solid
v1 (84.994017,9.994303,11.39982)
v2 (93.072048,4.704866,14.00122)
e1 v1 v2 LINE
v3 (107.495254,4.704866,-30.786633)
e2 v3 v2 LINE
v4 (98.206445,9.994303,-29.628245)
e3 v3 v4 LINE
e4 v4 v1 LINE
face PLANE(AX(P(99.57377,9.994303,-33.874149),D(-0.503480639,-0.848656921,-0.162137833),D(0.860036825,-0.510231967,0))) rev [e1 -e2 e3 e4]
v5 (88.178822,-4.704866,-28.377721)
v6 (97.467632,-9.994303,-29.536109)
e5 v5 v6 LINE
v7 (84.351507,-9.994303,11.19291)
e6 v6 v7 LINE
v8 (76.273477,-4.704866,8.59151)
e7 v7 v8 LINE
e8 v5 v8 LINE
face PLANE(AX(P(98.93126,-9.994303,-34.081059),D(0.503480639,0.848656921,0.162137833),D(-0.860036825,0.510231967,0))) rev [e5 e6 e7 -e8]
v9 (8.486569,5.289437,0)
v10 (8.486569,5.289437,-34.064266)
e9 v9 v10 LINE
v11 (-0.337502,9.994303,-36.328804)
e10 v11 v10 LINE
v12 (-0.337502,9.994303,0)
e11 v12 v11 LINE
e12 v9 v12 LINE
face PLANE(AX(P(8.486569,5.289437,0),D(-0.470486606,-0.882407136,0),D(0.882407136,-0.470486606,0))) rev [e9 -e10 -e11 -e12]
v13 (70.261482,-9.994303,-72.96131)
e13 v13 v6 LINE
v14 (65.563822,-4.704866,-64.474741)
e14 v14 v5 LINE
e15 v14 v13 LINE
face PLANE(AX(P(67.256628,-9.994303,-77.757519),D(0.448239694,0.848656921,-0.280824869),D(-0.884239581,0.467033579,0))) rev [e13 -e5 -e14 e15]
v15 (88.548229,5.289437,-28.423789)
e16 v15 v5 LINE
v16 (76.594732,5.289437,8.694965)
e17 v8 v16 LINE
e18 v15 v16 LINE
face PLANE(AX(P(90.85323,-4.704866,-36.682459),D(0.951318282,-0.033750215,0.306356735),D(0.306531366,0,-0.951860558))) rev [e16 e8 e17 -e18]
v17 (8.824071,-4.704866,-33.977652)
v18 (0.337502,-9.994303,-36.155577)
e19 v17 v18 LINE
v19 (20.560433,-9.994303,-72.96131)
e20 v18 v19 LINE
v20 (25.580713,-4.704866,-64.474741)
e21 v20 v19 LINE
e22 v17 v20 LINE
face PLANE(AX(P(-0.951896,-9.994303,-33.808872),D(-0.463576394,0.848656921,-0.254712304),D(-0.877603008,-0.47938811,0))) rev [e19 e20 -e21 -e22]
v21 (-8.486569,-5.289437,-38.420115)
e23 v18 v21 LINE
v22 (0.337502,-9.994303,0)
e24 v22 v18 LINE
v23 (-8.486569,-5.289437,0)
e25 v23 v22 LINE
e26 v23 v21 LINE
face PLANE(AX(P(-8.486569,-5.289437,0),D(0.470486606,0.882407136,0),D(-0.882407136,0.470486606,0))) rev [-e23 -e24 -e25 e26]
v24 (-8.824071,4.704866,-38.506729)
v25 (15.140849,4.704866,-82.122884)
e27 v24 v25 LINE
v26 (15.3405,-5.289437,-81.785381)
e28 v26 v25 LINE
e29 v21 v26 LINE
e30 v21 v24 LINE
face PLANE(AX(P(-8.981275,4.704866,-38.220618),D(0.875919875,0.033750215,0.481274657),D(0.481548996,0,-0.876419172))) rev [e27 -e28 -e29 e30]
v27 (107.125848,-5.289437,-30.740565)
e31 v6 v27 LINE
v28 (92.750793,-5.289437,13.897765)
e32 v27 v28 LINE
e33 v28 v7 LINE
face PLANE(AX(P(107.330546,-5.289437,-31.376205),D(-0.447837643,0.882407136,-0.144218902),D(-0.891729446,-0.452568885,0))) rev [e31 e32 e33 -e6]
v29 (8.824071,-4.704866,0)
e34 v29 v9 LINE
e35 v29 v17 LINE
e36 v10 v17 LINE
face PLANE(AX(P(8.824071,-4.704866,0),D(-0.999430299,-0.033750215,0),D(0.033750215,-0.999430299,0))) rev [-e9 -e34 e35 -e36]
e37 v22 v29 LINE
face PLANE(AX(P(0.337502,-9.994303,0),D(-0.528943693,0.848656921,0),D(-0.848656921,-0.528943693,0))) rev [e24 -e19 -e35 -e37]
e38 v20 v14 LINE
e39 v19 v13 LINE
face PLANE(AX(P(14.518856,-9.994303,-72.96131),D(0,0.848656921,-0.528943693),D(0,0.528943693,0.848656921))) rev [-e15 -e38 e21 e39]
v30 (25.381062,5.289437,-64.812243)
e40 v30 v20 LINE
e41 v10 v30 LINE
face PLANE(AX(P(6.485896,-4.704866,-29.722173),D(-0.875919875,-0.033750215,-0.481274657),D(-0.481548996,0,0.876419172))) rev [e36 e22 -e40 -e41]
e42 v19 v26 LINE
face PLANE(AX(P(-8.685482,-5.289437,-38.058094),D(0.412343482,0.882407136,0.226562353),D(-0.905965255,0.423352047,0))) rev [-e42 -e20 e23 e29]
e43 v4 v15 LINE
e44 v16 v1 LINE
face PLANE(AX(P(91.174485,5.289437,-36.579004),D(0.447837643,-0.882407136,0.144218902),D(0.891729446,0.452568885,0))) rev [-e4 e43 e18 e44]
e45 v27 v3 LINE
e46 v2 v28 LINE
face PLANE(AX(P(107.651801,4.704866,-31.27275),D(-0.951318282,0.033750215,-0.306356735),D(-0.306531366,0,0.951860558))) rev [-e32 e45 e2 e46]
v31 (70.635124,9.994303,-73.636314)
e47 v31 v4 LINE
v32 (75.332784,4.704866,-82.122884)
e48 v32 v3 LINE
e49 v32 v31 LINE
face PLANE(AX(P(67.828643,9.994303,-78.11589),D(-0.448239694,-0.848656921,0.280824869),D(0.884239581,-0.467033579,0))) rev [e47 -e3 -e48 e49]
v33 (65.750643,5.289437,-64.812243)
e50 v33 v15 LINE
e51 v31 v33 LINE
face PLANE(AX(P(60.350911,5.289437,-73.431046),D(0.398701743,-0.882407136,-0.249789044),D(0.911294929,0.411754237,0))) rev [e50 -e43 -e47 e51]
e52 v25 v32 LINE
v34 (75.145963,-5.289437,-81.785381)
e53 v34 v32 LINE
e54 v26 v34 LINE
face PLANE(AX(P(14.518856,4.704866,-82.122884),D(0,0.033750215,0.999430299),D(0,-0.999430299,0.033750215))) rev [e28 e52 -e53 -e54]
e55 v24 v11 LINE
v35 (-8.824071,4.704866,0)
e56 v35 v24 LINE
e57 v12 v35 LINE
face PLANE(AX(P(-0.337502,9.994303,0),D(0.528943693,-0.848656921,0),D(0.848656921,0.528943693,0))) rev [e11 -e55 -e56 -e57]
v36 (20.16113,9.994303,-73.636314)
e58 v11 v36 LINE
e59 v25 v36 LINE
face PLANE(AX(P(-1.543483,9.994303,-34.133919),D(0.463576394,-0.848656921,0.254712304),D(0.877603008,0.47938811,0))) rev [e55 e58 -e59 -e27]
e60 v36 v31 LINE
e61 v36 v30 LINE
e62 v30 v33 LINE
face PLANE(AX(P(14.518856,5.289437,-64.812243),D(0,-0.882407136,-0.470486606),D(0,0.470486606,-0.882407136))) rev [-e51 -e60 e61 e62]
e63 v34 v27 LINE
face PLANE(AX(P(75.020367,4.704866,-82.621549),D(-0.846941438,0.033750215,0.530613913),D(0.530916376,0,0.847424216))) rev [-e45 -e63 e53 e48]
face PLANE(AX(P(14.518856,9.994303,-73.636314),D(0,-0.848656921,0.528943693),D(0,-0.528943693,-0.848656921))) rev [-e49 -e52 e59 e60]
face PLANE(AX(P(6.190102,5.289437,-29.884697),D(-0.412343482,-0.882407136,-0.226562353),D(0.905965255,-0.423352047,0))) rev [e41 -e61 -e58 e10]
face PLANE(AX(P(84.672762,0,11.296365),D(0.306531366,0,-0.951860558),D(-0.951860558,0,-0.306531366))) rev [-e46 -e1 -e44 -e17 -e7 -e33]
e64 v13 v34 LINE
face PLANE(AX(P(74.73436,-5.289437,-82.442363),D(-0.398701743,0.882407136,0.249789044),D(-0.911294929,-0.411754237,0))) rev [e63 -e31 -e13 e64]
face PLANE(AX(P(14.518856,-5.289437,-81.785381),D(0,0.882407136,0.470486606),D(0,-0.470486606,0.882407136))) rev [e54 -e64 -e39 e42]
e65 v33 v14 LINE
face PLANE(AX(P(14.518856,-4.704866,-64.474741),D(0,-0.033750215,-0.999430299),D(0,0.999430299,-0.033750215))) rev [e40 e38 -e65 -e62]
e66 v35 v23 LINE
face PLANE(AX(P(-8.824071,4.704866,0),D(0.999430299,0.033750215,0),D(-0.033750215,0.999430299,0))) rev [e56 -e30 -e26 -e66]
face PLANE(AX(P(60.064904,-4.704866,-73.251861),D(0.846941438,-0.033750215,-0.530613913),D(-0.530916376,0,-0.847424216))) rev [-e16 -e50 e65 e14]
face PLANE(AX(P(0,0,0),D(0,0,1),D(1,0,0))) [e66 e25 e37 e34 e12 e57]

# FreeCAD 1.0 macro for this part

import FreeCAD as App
import Part
import Sketcher
from FreeCAD import Vector
Q = App.Units.Quantity

doc = App.newDocument("Part")
body = doc.addObject("PartDesign::Body", "Body")

# Sketch on XY plane
sketch1 = body.newObject("Sketcher::SketchObject", "Sketch")
sketch1.AttachmentSupport = (doc.getObject("XY_Plane"), [""])
sketch1.MapMode = "FlatFace"
sketch1.addGeometry(Part.LineSegment(Vector(8.824071, -4.704866, 0), Vector(8.486569, 5.289437, 0)), False)
sketch1.addGeometry(Part.LineSegment(Vector(8.486569, 5.289437, 0), Vector(-0.337502, 9.994303, 0)), False)
sketch1.addGeometry(Part.LineSegment(Vector(-0.337502, 9.994303, 0), Vector(-8.824071, 4.704866, 0)), False)
sketch1.addGeometry(Part.LineSegment(Vector(-8.824071, 4.704866, 0), Vector(-8.486569, -5.289437, 0)), False)
sketch1.addGeometry(Part.LineSegment(Vector(-8.486569, -5.289437, 0), Vector(0.337502, -9.994303, 0)), False)
sketch1.addGeometry(Part.LineSegment(Vector(0.337502, -9.994303, 0), Vector(8.824071, -4.704866, 0)), False)
sketch1.addConstraint(Sketcher.Constraint("Coincident", 0, 2, 1, 1))
sketch1.addConstraint(Sketcher.Constraint("Coincident", 1, 2, 2, 1))
sketch1.addConstraint(Sketcher.Constraint("Coincident", 2, 2, 3, 1))
sketch1.addConstraint(Sketcher.Constraint("Coincident", 3, 2, 4, 1))
sketch1.addConstraint(Sketcher.Constraint("Coincident", 4, 2, 5, 1))
sketch1.addConstraint(Sketcher.Constraint("Coincident", 5, 2, 0, 1))
sketch1.addConstraint(Sketcher.Constraint("Symmetric", 0, 2, 3, 2, -1, 1))
sketch1.addConstraint(Sketcher.Constraint("Symmetric", 1, 2, 4, 2, -1, 1))
sketch1.addConstraint(Sketcher.Constraint("Symmetric", 2, 2, 5, 2, -1, 1))
sketch1.addConstraint(Sketcher.Constraint("Equal", 0, 1))
sketch1.addConstraint(Sketcher.Constraint("Equal", 1, 2))
sketch1.addConstraint(Sketcher.Constraint("Distance", 0, Q("10 mm")))
sketch1.addConstraint(Sketcher.Constraint("DistanceX", -1, 1, 0, 2, Q("8.486569 mm")))
sketch1.addConstraint(Sketcher.Constraint("DistanceX", 2, 2, -1, 1, Q("8.824071 mm")))
sketch1.addConstraint(Sketcher.Constraint("DistanceX", 1, 2, 0, 2, Q("8.824071 mm")))

# Sketch on XZ plane
sketch2 = body.newObject("Sketcher::SketchObject", "Sketch001")
sketch2.AttachmentSupport = (doc.getObject("XZ_Plane"), [""])
sketch2.MapMode = "FlatFace"
sketch2.addGeometry(Part.LineSegment(Vector(0, 0, 0), Vector(0, -36.242191, 0)), False)
sketch2.addGeometry(Part.LineSegment(Vector(0, -36.242191, 0), Vector(20.360781, -73.298812, 0)), False)
sketch2.addGeometry(Part.LineSegment(Vector(20.360781, -73.298812, 0), Vector(70.448303, -73.298812, 0)), False)
sketch2.addGeometry(Part.LineSegment(Vector(70.448303, -73.298812, 0), Vector(97.837038, -29.582177, 0)), False)
sketch2.addGeometry(Part.LineSegment(Vector(97.837038, -29.582177, 0), Vector(84.672762, 11.296365, 0)), False)
sketch2.addConstraint(Sketcher.Constraint("Coincident", 0, 2, 1, 1))
sketch2.addConstraint(Sketcher.Constraint("Coincident", 1, 2, 2, 1))
sketch2.addConstraint(Sketcher.Constraint("Coincident", 2, 2, 3, 1))
sketch2.addConstraint(Sketcher.Constraint("Coincident", 3, 2, 4, 1))
sketch2.addConstraint(Sketcher.Constraint("Vertical", 0))
sketch2.addConstraint(Sketcher.Constraint("Horizontal", 2))
sketch2.addConstraint(Sketcher.Constraint("Coincident", 0, 1, -1, 1))
sketch2.addConstraint(Sketcher.Constraint("DistanceX", 2, 1, 2, 2, Q("50.087522 mm")))
sketch2.addConstraint(Sketcher.Constraint("DistanceY", 0, 2, 0, 1, Q("36.242191 mm")))
sketch2.addConstraint(Sketcher.Constraint("DistanceX", -1, 1, 1, 2, Q("20.360781 mm")))
sketch2.addConstraint(Sketcher.Constraint("DistanceX", -1, 1, 3, 2, Q("97.837038 mm")))
sketch2.addConstraint(Sketcher.Constraint("DistanceY", 1, 2, 0, 2, Q("37.056622 mm")))
sketch2.addConstraint(Sketcher.Constraint("DistanceY", 3, 2, 4, 2, Q("40.878542 mm")))
sketch2.addConstraint(Sketcher.Constraint("DistanceX", 2, 2, 4, 2, Q("14.224459 mm")))
sketch2.addConstraint(Sketcher.Constraint("Distance", 3, Q("51.587664 mm")))
doc.recompute()

additivepipe = body.newObject("PartDesign::AdditivePipe", "AdditivePipe")
additivepipe.Profile = sketch1
additivepipe.Spine = (sketch2, ["Edge1", "Edge2", "Edge3", "Edge4", "Edge5"])
additivepipe.Transition = "Right corner"

doc.recompute()
